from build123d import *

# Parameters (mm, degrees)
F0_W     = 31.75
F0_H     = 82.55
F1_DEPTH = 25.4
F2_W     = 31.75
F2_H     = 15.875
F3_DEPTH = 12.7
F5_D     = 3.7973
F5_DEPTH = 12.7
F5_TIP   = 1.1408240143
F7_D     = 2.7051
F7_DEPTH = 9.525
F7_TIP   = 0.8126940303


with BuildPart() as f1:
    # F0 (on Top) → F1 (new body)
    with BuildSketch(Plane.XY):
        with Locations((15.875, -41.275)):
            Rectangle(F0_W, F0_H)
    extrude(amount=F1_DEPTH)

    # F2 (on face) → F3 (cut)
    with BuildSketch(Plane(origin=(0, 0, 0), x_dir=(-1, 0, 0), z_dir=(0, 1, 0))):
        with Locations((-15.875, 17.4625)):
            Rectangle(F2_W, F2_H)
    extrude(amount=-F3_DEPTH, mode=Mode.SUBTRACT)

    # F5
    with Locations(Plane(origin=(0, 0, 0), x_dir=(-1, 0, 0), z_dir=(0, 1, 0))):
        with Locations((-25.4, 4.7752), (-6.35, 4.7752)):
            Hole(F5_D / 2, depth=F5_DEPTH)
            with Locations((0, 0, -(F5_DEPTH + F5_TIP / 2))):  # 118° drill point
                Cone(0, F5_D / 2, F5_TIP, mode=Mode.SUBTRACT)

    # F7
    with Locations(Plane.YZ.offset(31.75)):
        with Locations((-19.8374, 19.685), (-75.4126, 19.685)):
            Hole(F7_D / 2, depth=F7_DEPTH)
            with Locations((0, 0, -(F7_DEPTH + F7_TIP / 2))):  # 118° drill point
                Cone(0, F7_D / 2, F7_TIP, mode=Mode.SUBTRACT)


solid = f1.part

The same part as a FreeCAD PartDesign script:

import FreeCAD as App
import Part
import Sketcher
from FreeCAD import Vector
Q = App.Units.Quantity

doc = App.newDocument("Part")
body = doc.addObject("PartDesign::Body", "Body")

sketch1 = body.newObject("Sketcher::SketchObject", "Sketch")
sketch1.AttachmentSupport = (doc.getObject("XY_Plane"), [""])
sketch1.MapMode = "FlatFace"
sketch1.addGeometry([
    Part.LineSegment(Vector(0, 0, 0), Vector(0, -82.55, 0)),
    Part.LineSegment(Vector(0, -82.55, 0), Vector(31.75, -82.55, 0)),
    Part.LineSegment(Vector(31.75, -82.55, 0), Vector(31.75, 0, 0)),
    Part.LineSegment(Vector(31.75, 0, 0), Vector(0, 0, 0)),
], False)
sketch1.addConstraint([
    Sketcher.Constraint("Coincident", 0, 2, 1, 1),
    Sketcher.Constraint("Coincident", 1, 2, 2, 1),
    Sketcher.Constraint("Coincident", 2, 2, 3, 1),
    Sketcher.Constraint("Coincident", 3, 2, 0, 1),
    Sketcher.Constraint("Vertical", 0),
    Sketcher.Constraint("Horizontal", 1),
    Sketcher.Constraint("Vertical", 2),
    Sketcher.Constraint("Horizontal", 3),
    Sketcher.Constraint("Coincident", 3, 2, -1, 1),
    Sketcher.Constraint("DistanceX", 1, 1, 1, 2, Q("1.25 in")),
    Sketcher.Constraint("DistanceY", 0, 2, 0, 1, Q("3.25 in")),
])
pad1 = body.newObject("PartDesign::Pad", "Pad")
pad1.Profile = sketch1
pad1.Length = Q("1 in")

sketch2 = body.newObject("Sketcher::SketchObject", "Sketch001")
sketch2.AttachmentSupport = (doc.getObject("XZ_Plane"), [""])
sketch2.MapMode = "FlatFace"
sketch2.addGeometry([
    Part.LineSegment(Vector(31.75, 25.4, 0), Vector(31.75, 9.525, 0)),
    Part.LineSegment(Vector(31.75, 9.525, 0), Vector(0, 9.525, 0)),
    Part.LineSegment(Vector(0, 9.525, 0), Vector(0, 25.4, 0)),
    Part.LineSegment(Vector(0, 25.4, 0), Vector(31.75, 25.4, 0)),
], False)
sketch2.addConstraint([
    Sketcher.Constraint("Coincident", 0, 2, 1, 1),
    Sketcher.Constraint("Coincident", 1, 2, 2, 1),
    Sketcher.Constraint("Coincident", 2, 2, 3, 1),
    Sketcher.Constraint("Coincident", 3, 2, 0, 1),
    Sketcher.Constraint("Vertical", 0),
    Sketcher.Constraint("Horizontal", 1),
    Sketcher.Constraint("Vertical", 2),
    Sketcher.Constraint("Horizontal", 3),
    Sketcher.Constraint("PointOnObject", 1, 2, -2),
    Sketcher.Constraint("DistanceY", -1, 1, 2, 2, Q("1 in")),
    Sketcher.Constraint("DistanceX", 1, 2, 1, 1, Q("1.25 in")),
    Sketcher.Constraint("DistanceY", 0, 2, 0, 1, Q("0.625 in")),
])
pocket1 = body.newObject("PartDesign::Pocket", "Pocket")
pocket1.Profile = sketch2
pocket1.Length = Q("0.5 in")
pocket1.Reversed = True

sketch3 = body.newObject("Sketcher::SketchObject", "Sketch002")
sketch3.AttachmentSupport = (doc.getObject("XZ_Plane"), [""])
sketch3.MapMode = "FlatFace"
sketch3.addGeometry([
    Part.Circle(Vector(25.4, 4.7752, 0), Vector(0, 0, 1), 1.89865),
    Part.Circle(Vector(6.35, 4.7752, 0), Vector(0, 0, 1), 1.89865),
], False)
sketch3.addConstraint([
    Sketcher.Constraint("Equal", 0, 1),
    Sketcher.Constraint("Horizontal", 0, 3, 1, 3),
    Sketcher.Constraint("DistanceX", -1, 1, 0, 3, Q("1 in")),
    Sketcher.Constraint("Diameter", 0, Q("0.1495 in")),
    Sketcher.Constraint("DistanceX", -1, 1, 1, 3, Q("0.25 in")),
    Sketcher.Constraint("DistanceY", -1, 1, 0, 3, Q("0.188 in")),
])
doc.recompute()
hole = body.newObject("PartDesign::Hole", "Hole")
hole.Profile = sketch3
hole.ThreadType = "None"
hole.Diameter = Q("0.1495 in")
hole.DepthType = "Dimension"
hole.Depth = Q("0.5 in")
hole.DrillPoint = "Angled"
hole.DrillPointAngle = 118
hole.Reversed = True

sketch4 = body.newObject("Sketcher::SketchObject", "Sketch003")
sketch4.AttachmentSupport = (doc.getObject("YZ_Plane"), [""])
sketch4.MapMode = "FlatFace"
sketch4.AttachmentOffset = App.Placement(Vector(0, 0, 1.25 * 25.4), App.Rotation())
sketch4.addGeometry([
    Part.Circle(Vector(-19.8374, 19.685, 0), Vector(0, 0, 1), 1.35255),
    Part.Circle(Vector(-75.4126, 19.685, 0), Vector(0, 0, 1), 1.35255),
], False)
sketch4.addConstraint([
    Sketcher.Constraint("Equal", 0, 1),
    Sketcher.Constraint("Horizontal", 0, 3, 1, 3),
    Sketcher.Constraint("Diameter", 0, Q("0.1065 in")),
    Sketcher.Constraint("DistanceX", 0, 3, -1, 1, Q("0.781 in")),
    Sketcher.Constraint("DistanceY", -1, 1, 0, 3, Q("0.775 in")),
    Sketcher.Constraint("DistanceX", 1, 3, -1, 1, Q("2.969 in")),
])
doc.recompute()
hole2 = body.newObject("PartDesign::Hole", "Hole001")
hole2.Profile = sketch4
hole2.ThreadType = "None"
hole2.Diameter = Q("0.1065 in")
hole2.DepthType = "Dimension"
hole2.Depth = Q("0.375 in")
hole2.DrillPoint = "Angled"
hole2.DrillPointAngle = 118

doc.recompute()
